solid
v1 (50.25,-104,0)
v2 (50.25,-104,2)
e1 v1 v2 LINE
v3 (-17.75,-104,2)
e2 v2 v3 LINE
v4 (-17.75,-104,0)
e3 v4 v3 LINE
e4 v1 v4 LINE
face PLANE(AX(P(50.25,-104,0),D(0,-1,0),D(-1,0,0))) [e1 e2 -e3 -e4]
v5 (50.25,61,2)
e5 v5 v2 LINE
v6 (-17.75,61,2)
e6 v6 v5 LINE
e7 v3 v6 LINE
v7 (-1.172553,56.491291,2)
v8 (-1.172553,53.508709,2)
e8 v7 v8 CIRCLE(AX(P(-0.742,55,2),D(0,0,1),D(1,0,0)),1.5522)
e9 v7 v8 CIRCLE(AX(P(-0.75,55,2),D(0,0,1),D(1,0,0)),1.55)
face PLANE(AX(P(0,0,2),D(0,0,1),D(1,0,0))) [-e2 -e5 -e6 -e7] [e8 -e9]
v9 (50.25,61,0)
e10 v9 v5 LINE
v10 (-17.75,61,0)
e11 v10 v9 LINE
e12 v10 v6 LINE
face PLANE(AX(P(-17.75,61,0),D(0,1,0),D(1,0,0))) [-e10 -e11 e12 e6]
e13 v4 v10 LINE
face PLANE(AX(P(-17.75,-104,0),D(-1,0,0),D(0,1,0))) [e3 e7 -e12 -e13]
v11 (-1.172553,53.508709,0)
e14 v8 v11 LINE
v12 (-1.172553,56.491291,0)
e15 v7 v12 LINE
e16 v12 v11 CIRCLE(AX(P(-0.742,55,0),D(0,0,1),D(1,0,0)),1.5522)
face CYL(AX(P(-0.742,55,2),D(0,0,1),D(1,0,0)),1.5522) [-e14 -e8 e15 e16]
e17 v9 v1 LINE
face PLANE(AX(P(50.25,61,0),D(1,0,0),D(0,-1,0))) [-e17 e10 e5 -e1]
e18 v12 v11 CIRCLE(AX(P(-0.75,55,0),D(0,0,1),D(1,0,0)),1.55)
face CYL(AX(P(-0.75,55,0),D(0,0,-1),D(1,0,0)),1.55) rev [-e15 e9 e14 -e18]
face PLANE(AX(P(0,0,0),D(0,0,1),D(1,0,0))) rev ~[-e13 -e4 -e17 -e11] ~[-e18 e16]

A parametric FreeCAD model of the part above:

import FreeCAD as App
import Part
import Sketcher

V = App.Vector


def add_polygon(sketch, points):
    """Adds a closed chain of lines whose ends are joined by coincident constraints."""
    first, n = sketch.GeometryCount, len(points)
    for a, b in zip(points, points[1:] + points[:1]):
        sketch.addGeometry(Part.LineSegment(App.Vector(*a, 0), App.Vector(*b, 0)), False)
    for i in range(n):
        sketch.addConstraint(Sketcher.Constraint("Coincident", first + i, 2, first + (i + 1) % n, 1))

doc = App.newDocument("Part")
body = doc.addObject("PartDesign::Body", "Body")

sketch1 = body.newObject("Sketcher::SketchObject", "Sketch")
sketch1.AttachmentSupport = (doc.getObject("XY_Plane"), [""])
sketch1.MapMode = "FlatFace"
add_polygon(sketch1, [(50.2, 61), (-17.8, 61), (-17.8, -104), (50.2, -104)])
sketch1.addGeometry(Part.Circle(V(-11.8, -98, 0), V(0, 0, 1), 1.6), False)
sketch1.addGeometry(Part.Circle(V(-4.8, -88, 0), V(0, 0, 1), 1.6), False)
sketch1.addGeometry(Part.Circle(V(-11.8, -68.8, 0), V(0, 0, 1), 1.6), False)
sketch1.addGeometry(Part.Circle(V(-4.8, -78, 0), V(0, 0, 1), 1.6), False)
sketch1.addGeometry(Part.Circle(V(-4.8, -68, 0), V(0, 0, 1), 1.6), False)
sketch1.addGeometry(Part.Circle(V(-0.8, -98, 0), V(0, 0, 1), 1.6), False)
sketch1.addGeometry(Part.Circle(V(4.8, -88, 0), V(0, 0, 1), 1.6), False)
sketch1.addGeometry(Part.Circle(V(11.2, -98, 0), V(0, 0, 1), 1.6), False)
sketch1.addGeometry(Part.Circle(V(4.8, -78, 0), V(0, 0, 1), 1.6), False)
sketch1.addGeometry(Part.Circle(V(4.8, -68, 0), V(0, 0, 1), 1.6), False)
sketch1.addGeometry(Part.Circle(V(-11.8, -56.8, 0), V(0, 0, 1), 1.6), False)
sketch1.addGeometry(Part.Circle(V(-4.8, -58, 0), V(0, 0, 1), 1.6), False)
sketch1.addGeometry(Part.Circle(V(-4.8, -48, 0), V(0, 0, 1), 1.6), False)
sketch1.addGeometry(Part.Circle(V(-11.8, -27.5, 0), V(0, 0, 1), 1.6), False)
sketch1.addGeometry(Part.Circle(V(4.8, -58, 0), V(0, 0, 1), 1.6), False)
sketch1.addGeometry(Part.Circle(V(4.8, -48, 0), V(0, 0, 1), 1.6), False)
sketch1.addGeometry(Part.Circle(V(21.2, -98, 0), V(0, 0, 1), 1.6), False)
sketch1.addGeometry(Part.Circle(V(25.5, -74.8, 0), V(0, 0, 1), 10.8), False)
sketch1.addGeometry(Part.Circle(V(33.2, -98, 0), V(0, 0, 1), 1.6), False)
sketch1.addGeometry(Part.Circle(V(44.2, -98, 0), V(0, 0, 1), 1.6), False)
sketch1.addGeometry(Part.Circle(V(44.2, -68.8, 0), V(0, 0, 1), 1.6), False)
sketch1.addGeometry(Part.Circle(V(25.5, -37.8, 0), V(0, 0, 1), 10.8), False)
sketch1.addGeometry(Part.Circle(V(44.2, -56.8, 0), V(0, 0, 1), 1.6), False)
sketch1.addGeometry(Part.Circle(V(44.2, -27.5, 0), V(0, 0, 1), 1.6), False)
sketch1.addGeometry(Part.Circle(V(-11.8, -15.5, 0), V(0, 0, 1), 1.6), False)
sketch1.addGeometry(Part.Circle(V(-11.8, 13.8, 0), V(0, 0, 1), 1.6), False)
sketch1.addGeometry(Part.Circle(V(-4.8, 8, 0), V(0, 0, 1), 1.6), False)
sketch1.addGeometry(Part.Circle(V(-4.8, 18, 0), V(0, 0, 1), 1.6), False)
sketch1.addGeometry(Part.Circle(V(4.8, 8, 0), V(0, 0, 1), 1.6), False)
sketch1.addGeometry(Part.Circle(V(4.8, 18, 0), V(0, 0, 1), 1.6), False)
sketch1.addGeometry(Part.Circle(V(-11.8, 25.8, 0), V(0, 0, 1), 1.6), False)
sketch1.addGeometry(Part.Circle(V(-4.8, 28, 0), V(0, 0, 1), 1.6), False)
sketch1.addGeometry(Part.Circle(V(-4.8, 38, 0), V(0, 0, 1), 1.6), False)
sketch1.addGeometry(Part.Circle(V(-11.8, 55, 0), V(0, 0, 1), 1.6), False)
sketch1.addGeometry(Part.Circle(V(-4.8, 48, 0), V(0, 0, 1), 1.6), False)
sketch1.addGeometry(Part.Circle(V(4.8, 28, 0), V(0, 0, 1), 1.6), False)
sketch1.addGeometry(Part.Circle(V(4.8, 38, 0), V(0, 0, 1), 1.6), False)
sketch1.addGeometry(Part.Circle(V(4.8, 48, 0), V(0, 0, 1), 1.6), False)
sketch1.addGeometry(Part.Circle(V(-0.8, 55, 0), V(0, 0, 1), 1.6), False)
sketch1.addGeometry(Part.Circle(V(11.2, 55, 0), V(0, 0, 1), 1.6), False)
sketch1.addGeometry(Part.Circle(V(25.5, -0.8, 0), V(0, 0, 1), 10.8), False)
sketch1.addGeometry(Part.Circle(V(44.2, -15.5, 0), V(0, 0, 1), 1.6), False)
sketch1.addGeometry(Part.Circle(V(44.2, 13.8, 0), V(0, 0, 1), 1.6), False)
sketch1.addGeometry(Part.Circle(V(25.5, 36.2, 0), V(0, 0, 1), 10.8), False)
sketch1.addGeometry(Part.Circle(V(21.2, 55, 0), V(0, 0, 1), 1.6), False)
sketch1.addGeometry(Part.Circle(V(44.2, 25.8, 0), V(0, 0, 1), 1.6), False)
sketch1.addGeometry(Part.Circle(V(33.2, 55, 0), V(0, 0, 1), 1.6), False)
sketch1.addGeometry(Part.Circle(V(44.2, 55, 0), V(0, 0, 1), 1.6), False)
sketch1.addConstraint([
    Sketcher.Constraint("Horizontal", 0),
    Sketcher.Constraint("Vertical", 1),
    Sketcher.Constraint("Horizontal", 2),
    Sketcher.Constraint("Vertical", 3),
    Sketcher.Constraint("Equal", 4, 5),
    Sketcher.Constraint("Equal", 5, 6),
    Sketcher.Constraint("Equal", 6, 7),
    Sketcher.Constraint("Equal", 7, 8),
    Sketcher.Constraint("Equal", 8, 9),
    Sketcher.Constraint("Equal", 9, 10),
    Sketcher.Constraint("Equal", 10, 11),
    Sketcher.Constraint("Equal", 11, 12),
    Sketcher.Constraint("Equal", 12, 13),
    Sketcher.Constraint("Equal", 13, 14),
    Sketcher.Constraint("Equal", 14, 15),
    Sketcher.Constraint("Equal", 15, 16),
    Sketcher.Constraint("Equal", 16, 17),
    Sketcher.Constraint("Equal", 17, 18),
    Sketcher.Constraint("Equal", 18, 19),
    Sketcher.Constraint("Equal", 19, 20),
    Sketcher.Constraint("Equal", 20, 22),
    Sketcher.Constraint("Equal", 22, 23),
    Sketcher.Constraint("Equal", 23, 24),
    Sketcher.Constraint("Equal", 21, 25),
    Sketcher.Constraint("Equal", 24, 26),
    Sketcher.Constraint("Equal", 26, 27),
    Sketcher.Constraint("Equal", 27, 28),
    Sketcher.Constraint("Equal", 28, 29),
    Sketcher.Constraint("Equal", 29, 30),
    Sketcher.Constraint("Equal", 30, 31),
    Sketcher.Constraint("Equal", 31, 32),
    Sketcher.Constraint("Equal", 32, 33),
    Sketcher.Constraint("Equal", 33, 34),
    Sketcher.Constraint("Equal", 34, 35),
    Sketcher.Constraint("Equal", 35, 36),
    Sketcher.Constraint("Equal", 36, 37),
    Sketcher.Constraint("Equal", 37, 38),
    Sketcher.Constraint("Equal", 38, 39),
    Sketcher.Constraint("Equal", 39, 40),
    Sketcher.Constraint("Equal", 40, 41),
    Sketcher.Constraint("Equal", 41, 42),
    Sketcher.Constraint("Equal", 42, 43),
    Sketcher.Constraint("Equal", 25, 44),
    Sketcher.Constraint("Equal", 43, 45),
    Sketcher.Constraint("Equal", 45, 46),
    Sketcher.Constraint("Equal", 44, 47),
    Sketcher.Constraint("Equal", 46, 48),
    Sketcher.Constraint("Equal", 48, 49),
    Sketcher.Constraint("Equal", 49, 50),
    Sketcher.Constraint("Equal", 50, 51),
    Sketcher.Constraint("Symmetric", 19, 3, 38, 3, -1, 1),
    Sketcher.Constraint("Symmetric", 16, 3, 41, 3, -1, 1),
    Sketcher.Constraint("Symmetric", 5, 3, 10, 3, -2),
    Sketcher.Constraint("Symmetric", 7, 3, 12, 3, -2),
    Sketcher.Constraint("Symmetric", 8, 3, 13, 3, -2),
    Sketcher.Constraint("Symmetric", 15, 3, 18, 3, -2),
    Sketcher.Constraint("Symmetric", 16, 3, 19, 3, -2),
    Sketcher.Constraint("Symmetric", 30, 3, 32, 3, -2),
    Sketcher.Constraint("Symmetric", 31, 3, 33, 3, -2),
    Sketcher.Constraint("Symmetric", 35, 3, 39, 3, -2),
    Sketcher.Constraint("Symmetric", 36, 3, 40, 3, -2),
    Sketcher.Constraint("Horizontal", 4, 3, 9, 3),
    Sketcher.Constraint("Horizontal", 9, 3, 11, 3),
    Sketcher.Constraint("Horizontal", 11, 3, 20, 3),
    Sketcher.Constraint("Horizontal", 20, 3, 22, 3),
    Sketcher.Constraint("Horizontal", 22, 3, 23, 3),
    Sketcher.Constraint("Horizontal", 6, 3, 24, 3),
    Sketcher.Constraint("Horizontal", 14, 3, 26, 3),
    Sketcher.Constraint("Horizontal", 17, 3, 27, 3),
    Sketcher.Constraint("Horizontal", 37, 3, 42, 3),
    Sketcher.Constraint("Horizontal", 42, 3, 43, 3),
    Sketcher.Constraint("Horizontal", 28, 3, 45, 3),
    Sketcher.Constraint("Horizontal", 29, 3, 46, 3),
    Sketcher.Constraint("Horizontal", 43, 3, 48, 3),
    Sketcher.Constraint("Horizontal", 34, 3, 49, 3),
    Sketcher.Constraint("Horizontal", 48, 3, 50, 3),
    Sketcher.Constraint("Horizontal", 50, 3, 51, 3),
    Sketcher.Constraint("Vertical", 4, 3, 6, 3),
    Sketcher.Constraint("Vertical", 5, 3, 7, 3),
    Sketcher.Constraint("Vertical", 7, 3, 8, 3),
    Sketcher.Constraint("Vertical", 6, 3, 14, 3),
    Sketcher.Constraint("Vertical", 8, 3, 15, 3),
    Sketcher.Constraint("Vertical", 15, 3, 16, 3),
    Sketcher.Constraint("Vertical", 14, 3, 17, 3),
    Sketcher.Constraint("Vertical", 23, 3, 24, 3),
    Sketcher.Constraint("Vertical", 21, 3, 25, 3),
    Sketcher.Constraint("Vertical", 24, 3, 26, 3),
    Sketcher.Constraint("Vertical", 26, 3, 27, 3),
    Sketcher.Constraint("Vertical", 17, 3, 28, 3),
    Sketcher.Constraint("Vertical", 28, 3, 29, 3),
    Sketcher.Constraint("Vertical", 16, 3, 30, 3),
    Sketcher.Constraint("Vertical", 30, 3, 31, 3),
    Sketcher.Constraint("Vertical", 29, 3, 34, 3),
    Sketcher.Constraint("Vertical", 31, 3, 35, 3),
    Sketcher.Constraint("Vertical", 35, 3, 36, 3),
    Sketcher.Constraint("Vertical", 34, 3, 37, 3),
    Sketcher.Constraint("Vertical", 9, 3, 42, 3),
    Sketcher.Constraint("Vertical", 11, 3, 43, 3),
    Sketcher.Constraint("Vertical", 25, 3, 44, 3),
    Sketcher.Constraint("Vertical", 27, 3, 45, 3),
    Sketcher.Constraint("Vertical", 45, 3, 46, 3),
    Sketcher.Constraint("Vertical", 44, 3, 47, 3),
    Sketcher.Constraint("Vertical", 20, 3, 48, 3),
    Sketcher.Constraint("Vertical", 46, 3, 49, 3),
    Sketcher.Constraint("Vertical", 22, 3, 50, 3),
    Sketcher.Constraint("Vertical", 49, 3, 51, 3),
    Sketcher.Constraint("Diameter", 4, 3.1),
    Sketcher.Constraint("DistanceX", 0, 2, 0, 1, 68.0),
    Sketcher.Constraint("DistanceY", 1, 2, 1, 1, 165.0),
    Sketcher.Constraint("DistanceY", 8, 3, -1, 1, 68.0),
    Sketcher.Constraint("DistanceY", -1, 1, 30, 3, 8.0),
    Sketcher.Constraint("DistanceY", 4, 3, 5, 3, 10.0),
    Sketcher.Constraint("DistanceY", 5, 3, 7, 3, 10.0),
    Sketcher.Constraint("DistanceY", 7, 3, 8, 3, 10.0),
    Sketcher.Constraint("DistanceY", 8, 3, 15, 3, 10.0),
    Sketcher.Constraint("DistanceY", 15, 3, 16, 3, 10.0),
    Sketcher.Constraint("DistanceX", 11, 3, 20, 3, 10.0),
    Sketcher.Constraint("DistanceY", 21, 3, 24, 3, 6.0),
    Sketcher.Constraint("DistanceY", 30, 3, 31, 3, 10.0),
    Sketcher.Constraint("DistanceY", 31, 3, 35, 3, 10.0),
    Sketcher.Constraint("DistanceY", 35, 3, 36, 3, 10.0),
    Sketcher.Constraint("DistanceY", 36, 3, 37, 3, 17.0),
    Sketcher.Constraint("DistanceX", 0, 2, 37, 3, 6.0),
    Sketcher.Constraint("DistanceY", 37, 3, 0, 2, 6.0),
    Sketcher.Constraint("DistanceX", 0, 2, 42, 3, 17.0),
    Sketcher.Constraint("DistanceX", 0, 2, 38, 3, 13.0),
    Sketcher.Constraint("DistanceX", 23, 3, 2, 2, 6.0),
    Sketcher.Constraint("DistanceX", 22, 3, 2, 2, 17.0),
    Sketcher.Constraint("Diameter", 21, 21.5),
    Sketcher.Constraint("DistanceX", 5, 3, 10, 3, 9.5),
    Sketcher.Constraint("DistanceY", 6, 3, 17, 3, 41.25),
    Sketcher.Constraint("DistanceY", 14, 3, 28, 3, 41.25),
    Sketcher.Constraint("DistanceY", 17, 3, 29, 3, 41.25),
    Sketcher.Constraint("DistanceX", 9, 3, 11, 3, 12.0),
    Sketcher.Constraint("DistanceY", 6, 3, 14, 3, 12.0),
    Sketcher.Constraint("DistanceY", 24, 3, 25, 3, 31.0),
    Sketcher.Constraint("DistanceY", 29, 3, 34, 3, 12.0),
    Sketcher.Constraint("DistanceY", 17, 3, -1, 1, 27.5),
    Sketcher.Constraint("DistanceX", -1, 1, 21, 3, 25.5),
    Sketcher.Constraint("DistanceY", 44, 3, 46, 3, 14.5),
    Sketcher.Constraint("DistanceY", 49, 3, 47, 3, 10.5),
])
pad1 = body.newObject("PartDesign::Pad", "Pad")
pad1.Profile = sketch1
pad1.Length = 2

sketch2 = body.newObject("Sketcher::SketchObject", "Sketch001")
sketch2.AttachmentSupport = (doc.getObject("XY_Plane"), [""])
sketch2.MapMode = "FlatFace"
sketch2.AttachmentOffset = App.Placement(V(0, 0, 2), App.Rotation())
sketch2.addGeometry([
    Part.Circle(V(44.2, 13.8, 0), V(0, 0, 1), 1.6),
    Part.Circle(V(44.2, -15.5, 0), V(0, 0, 1), 1.6),
    Part.Circle(V(44.2, -27.5, 0), V(0, 0, 1), 1.6),
    Part.Circle(V(44.2, 25.8, 0), V(0, 0, 1), 1.6),
    Part.Circle(V(4.8, 28, 0), V(0, 0, 1), 1.6),
    Part.Circle(V(4.8, 18, 0), V(0, 0, 1), 1.6),
    Part.Circle(V(4.8, 8, 0), V(0, 0, 1), 1.6),
    Part.Circle(V(-4.8, 8, 0), V(0, 0, 1), 1.6),
    Part.Circle(V(-4.8, 18, 0), V(0, 0, 1), 1.6),
    Part.Circle(V(-4.8, 28, 0), V(0, 0, 1), 1.6),
    Part.Circle(V(-4.8, 38, 0), V(0, 0, 1), 1.6),
    Part.Circle(V(4.8, 38, 0), V(0, 0, 1), 1.6),
    Part.Circle(V(-11.8, 25.8, 0), V(0, 0, 1), 1.6),
    Part.Circle(V(-11.8, 13.8, 0), V(0, 0, 1), 1.6),
    Part.Circle(V(-11.8, 55, 0), V(0, 0, 1), 1.6),
    Part.Circle(V(-0.7, 55, 0), V(0, 0, 1), 1.6),
    Part.Circle(V(11.2, 55, 0), V(0, 0, 1), 1.6),
    Part.Circle(V(21.2, 55, 0), V(0, 0, 1), 1.6),
    Part.Circle(V(33.2, 55, 0), V(0, 0, 1), 1.6),
    Part.Circle(V(44.2, 55, 0), V(0, 0, 1), 1.6),
    Part.Circle(V(25.5, 36.2, 0), V(0, 0, 1), 10.8),
    Part.Circle(V(25.5, -0.8, 0), V(0, 0, 1), 10.8),
    Part.Circle(V(25.5, -37.8, 0), V(0, 0, 1), 10.8),
    Part.Circle(V(44.2, -56.8, 0), V(0, 0, 1), 1.6),
    Part.Circle(V(44.2, -68.8, 0), V(0, 0, 1), 1.6),
    Part.Circle(V(25.5, -74.8, 0), V(0, 0, 1), 10.8),
    Part.Circle(V(4.8, -78, 0), V(0, 0, 1), 1.6),
    Part.Circle(V(4.8, -68, 0), V(0, 0, 1), 1.6),
    Part.Circle(V(4.8, -58, 0), V(0, 0, 1), 1.6),
    Part.Circle(V(4.8, -48, 0), V(0, 0, 1), 1.6),
    Part.Circle(V(-4.8, -48, 0), V(0, 0, 1), 1.6),
    Part.Circle(V(-4.8, -58, 0), V(0, 0, 1), 1.6),
    Part.Circle(V(-11.8, -56.8, 0), V(0, 0, 1), 1.6),
    Part.Circle(V(-4.8, -68, 0), V(0, 0, 1), 1.6),
    Part.Circle(V(-11.8, -68.8, 0), V(0, 0, 1), 1.6),
    Part.Circle(V(-4.8, -78, 0), V(0, 0, 1), 1.6),
    Part.Circle(V(-4.8, -88, 0), V(0, 0, 1), 1.6),
    Part.Circle(V(4.8, -88, 0), V(0, 0, 1), 1.6),
    Part.Circle(V(-11.8, -98, 0), V(0, 0, 1), 1.6),
    Part.Circle(V(-0.8, -98, 0), V(0, 0, 1), 1.6),
    Part.Circle(V(11.2, -98, 0), V(0, 0, 1), 1.6),
    Part.Circle(V(21.2, -98, 0), V(0, 0, 1), 1.6),
    Part.Circle(V(44.2, -98, 0), V(0, 0, 1), 1.6),
    Part.Circle(V(33.2, -98, 0), V(0, 0, 1), 1.6),
    Part.Circle(V(-4.8, 48, 0), V(0, 0, 1), 1.6),
    Part.Circle(V(4.8, 48, 0), V(0, 0, 1), 1.6),
    Part.Circle(V(-11.8, -27.5, 0), V(0, 0, 1), 1.6),
    Part.Circle(V(-11.8, -15.5, 0), V(0, 0, 1), 1.6),
], False)
sketch2.addConstraint([
    Sketcher.Constraint("Equal", 0, 1),
    Sketcher.Constraint("Equal", 1, 2),
    Sketcher.Constraint("Equal", 2, 3),
    Sketcher.Constraint("Equal", 3, 4),
    Sketcher.Constraint("Equal", 4, 5),
    Sketcher.Constraint("Equal", 5, 6),
    Sketcher.Constraint("Equal", 6, 7),
    Sketcher.Constraint("Equal", 7, 8),
    Sketcher.Constraint("Equal", 8, 9),
    Sketcher.Constraint("Equal", 9, 10),
    Sketcher.Constraint("Equal", 10, 11),
    Sketcher.Constraint("Equal", 11, 12),
    Sketcher.Constraint("Equal", 12, 13),
    Sketcher.Constraint("Equal", 13, 14),
    Sketcher.Constraint("Equal", 14, 16),
    Sketcher.Constraint("Equal", 16, 17),
    Sketcher.Constraint("Equal", 17, 18),
    Sketcher.Constraint("Equal", 18, 19),
    Sketcher.Constraint("Equal", 20, 21),
    Sketcher.Constraint("Equal", 21, 22),
    Sketcher.Constraint("Equal", 19, 23),
    Sketcher.Constraint("Equal", 23, 24),
    Sketcher.Constraint("Equal", 22, 25),
    Sketcher.Constraint("Equal", 24, 26),
    Sketcher.Constraint("Equal", 26, 27),
    Sketcher.Constraint("Equal", 27, 28),
    Sketcher.Constraint("Equal", 28, 29),
    Sketcher.Constraint("Equal", 29, 30),
    Sketcher.Constraint("Equal", 30, 31),
    Sketcher.Constraint("Equal", 31, 32),
    Sketcher.Constraint("Equal", 32, 33),
    Sketcher.Constraint("Equal", 33, 34),
    Sketcher.Constraint("Equal", 34, 35),
    Sketcher.Constraint("Equal", 35, 36),
    Sketcher.Constraint("Equal", 36, 37),
    Sketcher.Constraint("Equal", 37, 38),
    Sketcher.Constraint("Equal", 38, 39),
    Sketcher.Constraint("Equal", 39, 40),
    Sketcher.Constraint("Equal", 40, 41),
    Sketcher.Constraint("Equal", 41, 42),
    Sketcher.Constraint("Equal", 42, 43),
    Sketcher.Constraint("Equal", 43, 44),
    Sketcher.Constraint("Equal", 44, 45),
    Sketcher.Constraint("Equal", 45, 46),
    Sketcher.Constraint("Equal", 46, 47),
    Sketcher.Constraint("Symmetric", 29, 3, 44, 3, -1, 1),
    Sketcher.Constraint("Symmetric", 30, 3, 45, 3, -1, 1),
    Sketcher.Constraint("Symmetric", 6, 3, 7, 3, -2),
    Sketcher.Constraint("Symmetric", 5, 3, 8, 3, -2),
    Sketcher.Constraint("Symmetric", 4, 3, 9, 3, -2),
    Sketcher.Constraint("Symmetric", 10, 3, 11, 3, -2),
    Sketcher.Constraint("Symmetric", 29, 3, 30, 3, -2),
    Sketcher.Constraint("Symmetric", 28, 3, 31, 3, -2),
    Sketcher.Constraint("Symmetric", 27, 3, 33, 3, -2),
    Sketcher.Constraint("Symmetric", 26, 3, 35, 3, -2),
    Sketcher.Constraint("Symmetric", 36, 3, 37, 3, -2),
    Sketcher.Constraint("Horizontal", 3, 3, 12, 3),
    Sketcher.Constraint("Horizontal", 0, 3, 13, 3),
    Sketcher.Constraint("Horizontal", 14, 3, 15, 3),
    Sketcher.Constraint("Horizontal", 15, 3, 16, 3),
    Sketcher.Constraint("Horizontal", 16, 3, 17, 3),
    Sketcher.Constraint("Horizontal", 17, 3, 18, 3),
    Sketcher.Constraint("Horizontal", 18, 3, 19, 3),
    Sketcher.Constraint("Horizontal", 23, 3, 32, 3),
    Sketcher.Constraint("Horizontal", 24, 3, 34, 3),
    Sketcher.Constraint("Horizontal", 38, 3, 39, 3),
    Sketcher.Constraint("Horizontal", 39, 3, 40, 3),
    Sketcher.Constraint("Horizontal", 40, 3, 41, 3),
    Sketcher.Constraint("Horizontal", 41, 3, 42, 3),
    Sketcher.Constraint("Horizontal", 42, 3, 43, 3),
    Sketcher.Constraint("Horizontal", 2, 3, 46, 3),
    Sketcher.Constraint("Horizontal", 1, 3, 47, 3),
    Sketcher.Constraint("Vertical", 0, 3, 1, 3),
    Sketcher.Constraint("Vertical", 1, 3, 2, 3),
    Sketcher.Constraint("Vertical", 2, 3, 3, 3),
    Sketcher.Constraint("Vertical", 4, 3, 5, 3),
    Sketcher.Constraint("Vertical", 5, 3, 6, 3),
    Sketcher.Constraint("Vertical", 9, 3, 10, 3),
    Sketcher.Constraint("Vertical", 12, 3, 13, 3),
    Sketcher.Constraint("Vertical", 13, 3, 14, 3),
    Sketcher.Constraint("Vertical", 3, 3, 19, 3),
    Sketcher.Constraint("Vertical", 20, 3, 21, 3),
    Sketcher.Constraint("Vertical", 21, 3, 22, 3),
    Sketcher.Constraint("Vertical", 19, 3, 23, 3),
    Sketcher.Constraint("Vertical", 23, 3, 24, 3),
    Sketcher.Constraint("Vertical", 22, 3, 25, 3),
    Sketcher.Constraint("Vertical", 11, 3, 26, 3),
    Sketcher.Constraint("Vertical", 26, 3, 27, 3),
    Sketcher.Constraint("Vertical", 27, 3, 28, 3),
    Sketcher.Constraint("Vertical", 28, 3, 29, 3),
    Sketcher.Constraint("Vertical", 14, 3, 32, 3),
    Sketcher.Constraint("Vertical", 32, 3, 34, 3),
    Sketcher.Constraint("Vertical", 35, 3, 36, 3),
    Sketcher.Constraint("Vertical", 34, 3, 38, 3),
    Sketcher.Constraint("Vertical", 16, 3, 40, 3),
    Sketcher.Constraint("Vertical", 17, 3, 41, 3),
    Sketcher.Constraint("Vertical", 24, 3, 42, 3),
    Sketcher.Constraint("Vertical", 18, 3, 43, 3),
    Sketcher.Constraint("Vertical", 38, 3, 46, 3),
    Sketcher.Constraint("Vertical", 46, 3, 47, 3),
    Sketcher.Constraint("Diameter", 0, 3.1),
    Sketcher.Constraint("Diameter", 20, 21.5),
    Sketcher.Constraint("DistanceY", -1, 1, 4, 3, 28.0),
    Sketcher.Constraint("DistanceY", -1, 1, 5, 3, 18.0),
    Sketcher.Constraint("DistanceY", -1, 1, 6, 3, 8.0),
    Sketcher.Constraint("DistanceY", -1, 1, 10, 3, 38.0),
    Sketcher.Constraint("DistanceY", -1, 1, 14, 3, 55.0),
    Sketcher.Constraint("DistanceY", 26, 3, -1, 1, 78.0),
    Sketcher.Constraint("DistanceY", 27, 3, -1, 1, 68.0),
    Sketcher.Constraint("DistanceY", 28, 3, -1, 1, 58.0),
    Sketcher.Constraint("DistanceY", 29, 3, -1, 1, 48.0),
    Sketcher.Constraint("DistanceY", 36, 3, -1, 1, 88.0),
    Sketcher.Constraint("DistanceY", 38, 3, -1, 1, 98.0),
    Sketcher.Constraint("DistanceY", 2, 3, 1, 3, 12.0),
    Sketcher.Constraint("DistanceY", 0, 3, 3, 3, 12.0),
    Sketcher.Constraint("DistanceX", 7, 3, 0, 3, 49.0),
    Sketcher.Constraint("DistanceX", 12, 3, 9, 3, 7.0),
    Sketcher.Constraint("DistanceX", 14, 3, 16, 3, 23.0),
    Sketcher.Constraint("DistanceX", 16, 3, 17, 3, 10.0),
    Sketcher.Constraint("DistanceX", 17, 3, 18, 3, 12.0),
    Sketcher.Constraint("DistanceY", 22, 3, 21, 3, 37.0),
    Sketcher.Constraint("DistanceY", 23, 3, 22, 3, 19.0),
    Sketcher.Constraint("DistanceY", 24, 3, 23, 3, 12.0),
    Sketcher.Constraint("DistanceY", 25, 3, 24, 3, 6.0),
    Sketcher.Constraint("DistanceX", 36, 3, 39, 3, 4.0),
    Sketcher.Constraint("Diameter", 15, 3.1044),
    Sketcher.Constraint("DistanceY", 1, 3, -1, 1, 15.5),
    Sketcher.Constraint("DistanceX", -1, 1, 20, 3, 25.5),
    Sketcher.Constraint("DistanceX", 4, 3, 3, 3, 39.5),
    Sketcher.Constraint("DistanceY", 3, 3, 20, 3, 10.5),
    Sketcher.Constraint("DistanceY", 21, 3, 0, 3, 14.5),
    Sketcher.Constraint("DistanceY", -1, 1, 0, 3, 13.75),
    Sketcher.Constraint("DistanceX", 15, 3, -1, 1, 0.742),
])
pad2 = body.newObject("PartDesign::Pad", "Pad001")
pad2.Profile = sketch2
pad2.Length = 2
pad2.Reversed = True

doc.recompute()
